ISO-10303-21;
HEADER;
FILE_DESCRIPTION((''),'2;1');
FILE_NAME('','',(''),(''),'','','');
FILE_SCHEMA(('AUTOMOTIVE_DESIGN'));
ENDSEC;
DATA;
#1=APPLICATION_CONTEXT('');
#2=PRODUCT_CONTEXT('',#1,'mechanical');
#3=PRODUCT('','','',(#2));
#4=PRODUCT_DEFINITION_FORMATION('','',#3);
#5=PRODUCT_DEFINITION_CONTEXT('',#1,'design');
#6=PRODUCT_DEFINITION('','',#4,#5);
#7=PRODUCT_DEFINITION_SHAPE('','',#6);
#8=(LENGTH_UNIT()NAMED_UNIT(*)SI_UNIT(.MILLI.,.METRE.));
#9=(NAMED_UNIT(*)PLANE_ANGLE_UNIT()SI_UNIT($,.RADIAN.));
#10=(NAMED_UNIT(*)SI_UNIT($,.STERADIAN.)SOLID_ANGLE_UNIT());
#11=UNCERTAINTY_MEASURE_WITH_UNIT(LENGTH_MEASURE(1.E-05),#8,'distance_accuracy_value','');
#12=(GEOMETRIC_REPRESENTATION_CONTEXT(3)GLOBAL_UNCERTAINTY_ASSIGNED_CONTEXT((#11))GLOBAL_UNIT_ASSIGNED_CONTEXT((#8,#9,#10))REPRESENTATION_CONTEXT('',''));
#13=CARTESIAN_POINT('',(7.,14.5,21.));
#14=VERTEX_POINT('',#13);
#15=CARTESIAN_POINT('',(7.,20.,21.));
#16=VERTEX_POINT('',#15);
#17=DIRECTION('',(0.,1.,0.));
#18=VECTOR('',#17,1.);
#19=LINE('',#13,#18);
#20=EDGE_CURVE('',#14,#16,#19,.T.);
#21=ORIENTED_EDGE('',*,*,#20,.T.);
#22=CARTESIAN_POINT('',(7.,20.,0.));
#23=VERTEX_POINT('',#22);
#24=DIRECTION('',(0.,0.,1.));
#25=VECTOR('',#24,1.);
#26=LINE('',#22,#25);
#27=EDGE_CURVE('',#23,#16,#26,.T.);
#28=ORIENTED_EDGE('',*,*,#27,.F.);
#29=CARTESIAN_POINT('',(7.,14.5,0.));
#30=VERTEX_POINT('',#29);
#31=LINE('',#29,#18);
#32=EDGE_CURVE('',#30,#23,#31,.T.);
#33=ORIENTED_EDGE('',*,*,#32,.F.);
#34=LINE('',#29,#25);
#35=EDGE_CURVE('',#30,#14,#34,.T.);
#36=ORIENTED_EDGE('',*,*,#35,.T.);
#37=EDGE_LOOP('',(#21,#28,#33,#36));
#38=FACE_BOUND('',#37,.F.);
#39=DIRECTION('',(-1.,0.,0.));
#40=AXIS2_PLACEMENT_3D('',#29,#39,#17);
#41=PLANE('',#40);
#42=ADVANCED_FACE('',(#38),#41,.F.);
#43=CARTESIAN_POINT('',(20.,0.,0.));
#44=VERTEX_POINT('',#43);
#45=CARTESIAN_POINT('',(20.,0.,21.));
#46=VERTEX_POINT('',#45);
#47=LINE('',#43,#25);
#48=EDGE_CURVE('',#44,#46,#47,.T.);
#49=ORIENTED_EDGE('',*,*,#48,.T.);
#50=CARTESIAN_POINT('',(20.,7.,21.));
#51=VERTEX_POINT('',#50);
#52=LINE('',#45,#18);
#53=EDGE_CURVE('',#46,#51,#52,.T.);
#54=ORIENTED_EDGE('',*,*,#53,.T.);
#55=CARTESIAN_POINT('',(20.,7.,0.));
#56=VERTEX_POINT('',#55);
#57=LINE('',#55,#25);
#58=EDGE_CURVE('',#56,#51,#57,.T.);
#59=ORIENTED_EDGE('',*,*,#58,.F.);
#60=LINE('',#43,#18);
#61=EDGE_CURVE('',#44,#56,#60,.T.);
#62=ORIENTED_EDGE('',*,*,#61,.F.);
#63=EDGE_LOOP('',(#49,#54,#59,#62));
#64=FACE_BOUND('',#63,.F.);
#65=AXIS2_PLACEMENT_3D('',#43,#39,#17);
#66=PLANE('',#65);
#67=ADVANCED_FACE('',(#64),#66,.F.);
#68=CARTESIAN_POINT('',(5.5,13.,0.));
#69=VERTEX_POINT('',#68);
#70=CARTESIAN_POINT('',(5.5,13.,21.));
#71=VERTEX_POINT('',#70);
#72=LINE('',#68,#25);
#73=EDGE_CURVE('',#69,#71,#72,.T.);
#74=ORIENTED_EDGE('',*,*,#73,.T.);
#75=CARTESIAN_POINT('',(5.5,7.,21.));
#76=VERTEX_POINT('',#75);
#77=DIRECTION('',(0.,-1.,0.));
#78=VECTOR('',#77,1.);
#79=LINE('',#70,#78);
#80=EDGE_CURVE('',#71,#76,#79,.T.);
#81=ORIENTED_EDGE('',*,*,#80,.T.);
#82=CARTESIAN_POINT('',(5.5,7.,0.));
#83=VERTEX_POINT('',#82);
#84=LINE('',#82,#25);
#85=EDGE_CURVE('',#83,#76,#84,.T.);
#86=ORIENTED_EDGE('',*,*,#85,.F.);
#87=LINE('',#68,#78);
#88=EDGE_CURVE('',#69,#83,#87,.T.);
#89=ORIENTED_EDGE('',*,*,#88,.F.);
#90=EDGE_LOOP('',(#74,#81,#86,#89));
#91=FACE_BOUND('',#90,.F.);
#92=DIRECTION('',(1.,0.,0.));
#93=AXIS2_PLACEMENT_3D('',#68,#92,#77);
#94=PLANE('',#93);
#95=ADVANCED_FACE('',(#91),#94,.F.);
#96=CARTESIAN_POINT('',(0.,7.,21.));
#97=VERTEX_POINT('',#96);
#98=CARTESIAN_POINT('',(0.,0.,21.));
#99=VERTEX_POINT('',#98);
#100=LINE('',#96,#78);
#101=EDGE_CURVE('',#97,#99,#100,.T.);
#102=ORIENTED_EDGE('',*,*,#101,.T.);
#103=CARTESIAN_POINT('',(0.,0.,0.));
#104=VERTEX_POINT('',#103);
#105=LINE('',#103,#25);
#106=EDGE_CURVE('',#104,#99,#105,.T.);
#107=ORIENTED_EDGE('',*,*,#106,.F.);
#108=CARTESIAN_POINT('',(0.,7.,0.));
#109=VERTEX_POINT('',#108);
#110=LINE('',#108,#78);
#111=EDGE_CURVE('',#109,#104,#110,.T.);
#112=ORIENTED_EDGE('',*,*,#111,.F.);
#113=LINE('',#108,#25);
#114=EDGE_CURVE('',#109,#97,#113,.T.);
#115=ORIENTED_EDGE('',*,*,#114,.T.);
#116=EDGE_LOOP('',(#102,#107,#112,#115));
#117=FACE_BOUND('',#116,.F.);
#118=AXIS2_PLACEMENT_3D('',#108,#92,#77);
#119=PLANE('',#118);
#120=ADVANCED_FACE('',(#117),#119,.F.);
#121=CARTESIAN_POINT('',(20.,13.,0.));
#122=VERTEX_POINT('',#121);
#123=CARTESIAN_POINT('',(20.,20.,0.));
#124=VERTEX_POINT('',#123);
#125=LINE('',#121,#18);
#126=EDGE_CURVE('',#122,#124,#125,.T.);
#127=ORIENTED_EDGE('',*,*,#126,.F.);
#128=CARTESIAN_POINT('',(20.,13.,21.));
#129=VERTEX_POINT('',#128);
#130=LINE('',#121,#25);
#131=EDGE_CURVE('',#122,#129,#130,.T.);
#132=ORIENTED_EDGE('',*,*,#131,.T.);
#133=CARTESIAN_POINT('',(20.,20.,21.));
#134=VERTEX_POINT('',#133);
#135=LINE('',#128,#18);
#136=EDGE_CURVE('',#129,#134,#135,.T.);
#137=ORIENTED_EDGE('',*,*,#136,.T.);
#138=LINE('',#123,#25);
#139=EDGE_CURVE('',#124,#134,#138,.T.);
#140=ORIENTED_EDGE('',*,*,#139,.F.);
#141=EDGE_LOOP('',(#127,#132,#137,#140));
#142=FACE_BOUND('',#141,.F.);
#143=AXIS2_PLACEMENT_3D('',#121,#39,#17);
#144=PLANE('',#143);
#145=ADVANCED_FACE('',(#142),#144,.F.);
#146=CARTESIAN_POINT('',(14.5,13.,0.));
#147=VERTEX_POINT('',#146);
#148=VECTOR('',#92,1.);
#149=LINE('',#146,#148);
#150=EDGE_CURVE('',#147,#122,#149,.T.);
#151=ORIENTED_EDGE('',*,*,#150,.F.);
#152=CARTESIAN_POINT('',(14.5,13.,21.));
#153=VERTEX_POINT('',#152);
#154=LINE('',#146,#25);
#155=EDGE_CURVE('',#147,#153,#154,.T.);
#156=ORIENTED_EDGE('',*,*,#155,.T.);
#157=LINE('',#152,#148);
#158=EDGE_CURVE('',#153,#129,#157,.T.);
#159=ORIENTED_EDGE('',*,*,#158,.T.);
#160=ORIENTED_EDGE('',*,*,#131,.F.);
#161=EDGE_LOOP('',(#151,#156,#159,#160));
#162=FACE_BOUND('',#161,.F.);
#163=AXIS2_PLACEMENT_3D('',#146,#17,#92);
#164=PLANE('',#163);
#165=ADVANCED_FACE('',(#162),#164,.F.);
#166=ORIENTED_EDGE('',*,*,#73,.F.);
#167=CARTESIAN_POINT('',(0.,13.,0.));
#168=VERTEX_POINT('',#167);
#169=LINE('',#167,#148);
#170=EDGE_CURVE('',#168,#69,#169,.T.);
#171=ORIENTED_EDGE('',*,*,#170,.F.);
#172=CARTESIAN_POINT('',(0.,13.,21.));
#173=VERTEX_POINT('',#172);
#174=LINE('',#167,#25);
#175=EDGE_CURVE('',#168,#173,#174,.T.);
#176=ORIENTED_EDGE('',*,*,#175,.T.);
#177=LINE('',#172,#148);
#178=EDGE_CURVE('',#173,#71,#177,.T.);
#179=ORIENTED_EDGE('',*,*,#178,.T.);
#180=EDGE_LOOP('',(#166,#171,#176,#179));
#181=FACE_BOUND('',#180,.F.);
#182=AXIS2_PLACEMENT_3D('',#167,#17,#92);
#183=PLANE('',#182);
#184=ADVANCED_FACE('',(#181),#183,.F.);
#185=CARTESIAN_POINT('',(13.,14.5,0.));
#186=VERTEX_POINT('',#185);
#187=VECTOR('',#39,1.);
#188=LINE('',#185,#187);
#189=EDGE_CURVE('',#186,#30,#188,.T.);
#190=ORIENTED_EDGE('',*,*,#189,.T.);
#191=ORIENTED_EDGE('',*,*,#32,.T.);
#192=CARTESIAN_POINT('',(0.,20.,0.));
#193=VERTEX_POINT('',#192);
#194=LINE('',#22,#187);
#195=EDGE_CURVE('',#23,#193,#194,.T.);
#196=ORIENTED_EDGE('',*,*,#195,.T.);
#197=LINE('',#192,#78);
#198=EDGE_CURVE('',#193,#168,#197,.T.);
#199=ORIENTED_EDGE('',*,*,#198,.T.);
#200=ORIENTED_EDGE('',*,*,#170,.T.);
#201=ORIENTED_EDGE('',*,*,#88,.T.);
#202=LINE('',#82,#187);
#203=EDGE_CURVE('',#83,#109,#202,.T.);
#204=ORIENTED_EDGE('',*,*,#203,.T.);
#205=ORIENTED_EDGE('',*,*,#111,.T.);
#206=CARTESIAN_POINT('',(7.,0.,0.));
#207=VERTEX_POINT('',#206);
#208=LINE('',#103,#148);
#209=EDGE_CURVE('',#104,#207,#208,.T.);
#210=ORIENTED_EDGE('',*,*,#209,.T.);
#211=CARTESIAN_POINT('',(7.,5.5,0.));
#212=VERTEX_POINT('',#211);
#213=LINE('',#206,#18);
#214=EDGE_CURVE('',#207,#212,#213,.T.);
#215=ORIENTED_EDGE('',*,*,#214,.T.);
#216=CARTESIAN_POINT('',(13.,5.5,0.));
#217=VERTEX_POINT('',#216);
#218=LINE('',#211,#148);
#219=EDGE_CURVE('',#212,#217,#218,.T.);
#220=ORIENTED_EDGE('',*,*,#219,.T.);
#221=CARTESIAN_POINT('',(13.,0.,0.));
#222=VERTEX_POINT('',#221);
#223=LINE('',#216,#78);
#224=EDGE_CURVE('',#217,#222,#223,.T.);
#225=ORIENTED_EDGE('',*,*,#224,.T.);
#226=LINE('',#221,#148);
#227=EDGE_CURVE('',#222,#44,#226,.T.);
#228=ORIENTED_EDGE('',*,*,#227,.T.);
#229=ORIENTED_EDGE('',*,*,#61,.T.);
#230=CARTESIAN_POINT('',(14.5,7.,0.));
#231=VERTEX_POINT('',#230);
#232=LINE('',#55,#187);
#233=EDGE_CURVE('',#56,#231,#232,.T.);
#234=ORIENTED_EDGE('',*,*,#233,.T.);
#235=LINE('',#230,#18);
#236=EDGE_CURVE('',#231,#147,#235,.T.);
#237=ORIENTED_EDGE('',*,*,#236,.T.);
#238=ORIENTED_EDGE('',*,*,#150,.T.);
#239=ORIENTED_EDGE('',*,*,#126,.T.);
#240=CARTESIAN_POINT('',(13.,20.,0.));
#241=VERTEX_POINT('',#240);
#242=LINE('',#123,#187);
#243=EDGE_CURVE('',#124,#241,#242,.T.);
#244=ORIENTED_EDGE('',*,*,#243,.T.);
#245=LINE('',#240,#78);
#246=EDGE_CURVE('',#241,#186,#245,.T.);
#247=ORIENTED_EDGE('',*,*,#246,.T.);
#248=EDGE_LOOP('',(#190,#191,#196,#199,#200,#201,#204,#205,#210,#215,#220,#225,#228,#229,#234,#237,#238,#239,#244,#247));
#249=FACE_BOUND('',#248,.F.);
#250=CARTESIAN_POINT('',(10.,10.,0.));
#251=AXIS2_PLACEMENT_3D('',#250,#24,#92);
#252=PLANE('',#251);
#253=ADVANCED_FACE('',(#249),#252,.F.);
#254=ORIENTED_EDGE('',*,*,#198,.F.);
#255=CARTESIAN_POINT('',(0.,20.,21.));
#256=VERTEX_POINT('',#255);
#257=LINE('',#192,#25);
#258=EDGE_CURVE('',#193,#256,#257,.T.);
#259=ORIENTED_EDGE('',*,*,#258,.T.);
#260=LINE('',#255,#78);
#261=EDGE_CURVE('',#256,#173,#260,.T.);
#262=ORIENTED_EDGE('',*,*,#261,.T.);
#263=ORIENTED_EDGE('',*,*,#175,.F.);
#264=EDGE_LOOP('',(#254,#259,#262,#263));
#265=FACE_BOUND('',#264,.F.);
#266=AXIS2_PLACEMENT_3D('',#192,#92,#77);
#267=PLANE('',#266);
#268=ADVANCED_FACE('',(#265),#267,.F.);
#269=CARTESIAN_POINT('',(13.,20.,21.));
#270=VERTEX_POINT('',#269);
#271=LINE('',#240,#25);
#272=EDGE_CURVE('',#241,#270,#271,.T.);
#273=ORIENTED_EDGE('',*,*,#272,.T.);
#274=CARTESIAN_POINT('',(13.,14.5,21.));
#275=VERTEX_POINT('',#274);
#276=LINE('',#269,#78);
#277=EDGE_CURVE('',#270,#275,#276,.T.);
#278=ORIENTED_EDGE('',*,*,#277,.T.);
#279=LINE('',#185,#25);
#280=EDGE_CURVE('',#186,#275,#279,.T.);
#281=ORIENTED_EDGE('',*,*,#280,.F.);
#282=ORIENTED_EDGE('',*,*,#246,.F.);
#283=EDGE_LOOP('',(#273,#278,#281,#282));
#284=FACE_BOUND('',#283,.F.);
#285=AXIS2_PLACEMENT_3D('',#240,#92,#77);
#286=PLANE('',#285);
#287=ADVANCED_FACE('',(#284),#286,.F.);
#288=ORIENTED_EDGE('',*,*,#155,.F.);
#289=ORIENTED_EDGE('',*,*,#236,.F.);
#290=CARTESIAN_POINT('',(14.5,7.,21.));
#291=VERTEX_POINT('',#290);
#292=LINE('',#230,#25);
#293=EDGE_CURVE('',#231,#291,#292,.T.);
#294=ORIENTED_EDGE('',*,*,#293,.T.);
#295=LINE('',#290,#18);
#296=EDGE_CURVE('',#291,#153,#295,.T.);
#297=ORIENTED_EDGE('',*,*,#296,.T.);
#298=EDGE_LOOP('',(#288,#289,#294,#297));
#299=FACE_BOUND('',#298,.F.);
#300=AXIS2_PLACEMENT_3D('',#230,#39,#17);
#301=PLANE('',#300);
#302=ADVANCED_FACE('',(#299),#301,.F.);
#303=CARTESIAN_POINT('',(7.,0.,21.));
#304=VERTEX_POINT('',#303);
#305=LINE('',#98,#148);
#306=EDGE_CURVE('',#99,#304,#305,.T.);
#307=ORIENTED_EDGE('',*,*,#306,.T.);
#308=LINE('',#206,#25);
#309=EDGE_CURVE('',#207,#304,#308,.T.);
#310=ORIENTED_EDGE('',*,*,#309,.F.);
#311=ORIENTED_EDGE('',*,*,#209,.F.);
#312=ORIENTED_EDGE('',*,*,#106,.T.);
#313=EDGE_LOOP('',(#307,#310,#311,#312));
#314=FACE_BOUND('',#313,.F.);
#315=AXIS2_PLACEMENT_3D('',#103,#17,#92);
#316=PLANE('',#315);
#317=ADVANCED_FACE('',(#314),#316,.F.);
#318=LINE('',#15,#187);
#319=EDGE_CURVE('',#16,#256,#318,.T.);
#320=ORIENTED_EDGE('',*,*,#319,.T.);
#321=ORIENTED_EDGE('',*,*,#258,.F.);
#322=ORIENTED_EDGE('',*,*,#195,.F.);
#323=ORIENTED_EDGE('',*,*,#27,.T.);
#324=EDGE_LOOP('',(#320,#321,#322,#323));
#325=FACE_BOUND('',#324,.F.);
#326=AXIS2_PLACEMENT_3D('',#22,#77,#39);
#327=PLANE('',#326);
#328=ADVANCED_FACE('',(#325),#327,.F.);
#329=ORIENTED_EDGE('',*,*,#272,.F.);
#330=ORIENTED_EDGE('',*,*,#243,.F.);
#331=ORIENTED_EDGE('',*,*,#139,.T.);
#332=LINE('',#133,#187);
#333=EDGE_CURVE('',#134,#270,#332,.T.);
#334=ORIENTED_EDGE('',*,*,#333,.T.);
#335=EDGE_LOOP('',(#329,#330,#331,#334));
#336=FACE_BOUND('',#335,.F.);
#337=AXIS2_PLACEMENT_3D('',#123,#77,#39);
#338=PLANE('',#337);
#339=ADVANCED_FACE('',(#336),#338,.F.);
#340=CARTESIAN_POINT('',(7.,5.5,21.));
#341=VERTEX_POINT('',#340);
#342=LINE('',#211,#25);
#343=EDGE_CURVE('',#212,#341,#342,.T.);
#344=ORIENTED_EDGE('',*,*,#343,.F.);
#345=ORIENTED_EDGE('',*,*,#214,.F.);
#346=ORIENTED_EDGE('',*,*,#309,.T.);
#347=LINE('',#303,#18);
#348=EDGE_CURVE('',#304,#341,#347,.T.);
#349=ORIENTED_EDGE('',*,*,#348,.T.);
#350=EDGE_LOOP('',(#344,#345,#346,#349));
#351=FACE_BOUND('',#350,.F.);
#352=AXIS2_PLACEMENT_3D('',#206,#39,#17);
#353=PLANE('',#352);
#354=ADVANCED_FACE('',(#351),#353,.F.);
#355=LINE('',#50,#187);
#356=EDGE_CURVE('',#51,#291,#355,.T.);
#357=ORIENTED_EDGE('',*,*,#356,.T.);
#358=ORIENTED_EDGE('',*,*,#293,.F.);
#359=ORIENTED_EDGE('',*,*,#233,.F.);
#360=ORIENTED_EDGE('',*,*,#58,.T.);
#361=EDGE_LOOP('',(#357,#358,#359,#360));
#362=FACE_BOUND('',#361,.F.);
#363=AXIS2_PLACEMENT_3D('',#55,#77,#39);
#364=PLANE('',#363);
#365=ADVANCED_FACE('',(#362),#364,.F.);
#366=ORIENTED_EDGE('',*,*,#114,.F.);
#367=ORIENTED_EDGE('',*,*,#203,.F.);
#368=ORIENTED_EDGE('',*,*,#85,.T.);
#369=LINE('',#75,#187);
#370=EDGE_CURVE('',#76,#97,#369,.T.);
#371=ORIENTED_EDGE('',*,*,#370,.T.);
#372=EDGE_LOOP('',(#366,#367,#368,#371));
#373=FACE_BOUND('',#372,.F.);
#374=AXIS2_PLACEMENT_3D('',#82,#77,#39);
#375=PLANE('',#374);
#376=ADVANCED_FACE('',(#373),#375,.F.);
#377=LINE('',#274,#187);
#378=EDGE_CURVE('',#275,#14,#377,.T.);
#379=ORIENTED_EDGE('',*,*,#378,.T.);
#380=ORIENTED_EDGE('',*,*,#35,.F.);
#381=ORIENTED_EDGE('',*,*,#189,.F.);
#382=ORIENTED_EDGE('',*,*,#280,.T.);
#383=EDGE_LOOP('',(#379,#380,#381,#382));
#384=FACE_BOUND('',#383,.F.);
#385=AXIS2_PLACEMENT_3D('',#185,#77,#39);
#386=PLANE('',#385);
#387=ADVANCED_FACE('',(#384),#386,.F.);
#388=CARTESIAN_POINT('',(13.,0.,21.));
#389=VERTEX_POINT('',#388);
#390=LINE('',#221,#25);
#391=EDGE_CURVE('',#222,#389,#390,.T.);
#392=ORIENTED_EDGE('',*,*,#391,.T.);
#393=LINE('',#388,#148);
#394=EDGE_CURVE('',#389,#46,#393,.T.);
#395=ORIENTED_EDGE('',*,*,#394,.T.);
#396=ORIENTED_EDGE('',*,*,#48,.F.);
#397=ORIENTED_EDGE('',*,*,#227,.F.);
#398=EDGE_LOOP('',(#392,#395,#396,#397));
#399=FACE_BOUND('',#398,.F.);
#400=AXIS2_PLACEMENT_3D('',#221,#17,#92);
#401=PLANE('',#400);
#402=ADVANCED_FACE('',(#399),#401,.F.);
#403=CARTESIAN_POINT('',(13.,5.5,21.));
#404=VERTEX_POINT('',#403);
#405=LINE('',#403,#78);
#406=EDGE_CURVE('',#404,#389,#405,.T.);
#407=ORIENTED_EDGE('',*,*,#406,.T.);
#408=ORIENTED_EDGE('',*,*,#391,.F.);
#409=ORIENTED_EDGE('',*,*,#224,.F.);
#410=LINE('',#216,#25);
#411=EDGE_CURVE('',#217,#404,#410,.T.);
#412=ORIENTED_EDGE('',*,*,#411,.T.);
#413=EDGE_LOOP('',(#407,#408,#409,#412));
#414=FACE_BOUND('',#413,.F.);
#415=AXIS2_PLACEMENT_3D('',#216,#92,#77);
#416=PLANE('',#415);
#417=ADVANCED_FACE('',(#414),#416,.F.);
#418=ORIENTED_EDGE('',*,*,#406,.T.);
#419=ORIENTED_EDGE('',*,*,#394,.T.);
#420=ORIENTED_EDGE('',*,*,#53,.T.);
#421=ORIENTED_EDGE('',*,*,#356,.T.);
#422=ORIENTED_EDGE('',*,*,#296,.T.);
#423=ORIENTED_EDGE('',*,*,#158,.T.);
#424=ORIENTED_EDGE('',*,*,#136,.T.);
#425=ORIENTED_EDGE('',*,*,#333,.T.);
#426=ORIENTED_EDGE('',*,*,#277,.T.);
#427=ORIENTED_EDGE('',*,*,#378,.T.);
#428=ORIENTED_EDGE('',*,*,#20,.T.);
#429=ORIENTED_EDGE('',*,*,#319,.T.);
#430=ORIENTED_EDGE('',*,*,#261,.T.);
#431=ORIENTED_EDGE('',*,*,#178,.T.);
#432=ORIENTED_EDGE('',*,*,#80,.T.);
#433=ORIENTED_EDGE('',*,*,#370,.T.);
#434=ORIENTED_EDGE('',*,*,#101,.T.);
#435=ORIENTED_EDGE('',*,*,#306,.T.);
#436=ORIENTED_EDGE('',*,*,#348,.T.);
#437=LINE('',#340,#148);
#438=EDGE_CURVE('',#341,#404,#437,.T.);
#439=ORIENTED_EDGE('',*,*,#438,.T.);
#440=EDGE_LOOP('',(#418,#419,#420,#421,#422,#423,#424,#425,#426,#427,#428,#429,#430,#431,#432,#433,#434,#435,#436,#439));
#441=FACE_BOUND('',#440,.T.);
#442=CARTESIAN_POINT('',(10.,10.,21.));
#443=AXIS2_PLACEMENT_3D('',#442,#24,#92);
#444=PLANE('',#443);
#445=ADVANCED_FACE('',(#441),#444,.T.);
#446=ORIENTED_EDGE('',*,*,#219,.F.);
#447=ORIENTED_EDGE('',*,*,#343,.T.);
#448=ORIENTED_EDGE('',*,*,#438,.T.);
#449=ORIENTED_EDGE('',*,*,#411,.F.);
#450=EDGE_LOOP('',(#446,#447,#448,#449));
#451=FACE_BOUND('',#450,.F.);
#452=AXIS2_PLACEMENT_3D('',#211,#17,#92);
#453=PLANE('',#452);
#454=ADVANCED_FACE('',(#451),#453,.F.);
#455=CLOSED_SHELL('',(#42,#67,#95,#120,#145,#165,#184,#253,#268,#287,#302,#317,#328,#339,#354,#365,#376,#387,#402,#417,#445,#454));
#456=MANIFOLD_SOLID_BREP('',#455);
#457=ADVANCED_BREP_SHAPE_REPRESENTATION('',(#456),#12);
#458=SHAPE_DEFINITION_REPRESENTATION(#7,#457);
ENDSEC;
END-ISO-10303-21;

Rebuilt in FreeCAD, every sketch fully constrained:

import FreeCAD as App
import Part
import Sketcher
from FreeCAD import Vector
Q = App.Units.Quantity

doc = App.newDocument("Part")
body = doc.addObject("PartDesign::Body", "Body")

# Sketch on XY plane
sketch1 = body.newObject("Sketcher::SketchObject", "Sketch")
sketch1.AttachmentSupport = (doc.getObject("XY_Plane"), [""])
sketch1.MapMode = "FlatFace"
sketch1.addGeometry([
    Part.LineSegment(Vector(0, 7, 0), Vector(0, 0, 0)),  # 0
    Part.LineSegment(Vector(0, 0, 0), Vector(7, 0, 0)),  # 1
    Part.LineSegment(Vector(7, 0, 0), Vector(7, 6, 0)),  # 2
    Part.LineSegment(Vector(7, 6, 0), Vector(13, 6, 0)),  # 3
    Part.LineSegment(Vector(13, 6, 0), Vector(13, 0, 0)),  # 4
    Part.LineSegment(Vector(13, 0, 0), Vector(20, 0, 0)),  # 5
    Part.LineSegment(Vector(20, 0, 0), Vector(20, 7, 0)),  # 6
    Part.LineSegment(Vector(20, 7, 0), Vector(14, 7, 0)),  # 7
    Part.LineSegment(Vector(14, 7, 0), Vector(14, 13, 0)),  # 8
    Part.LineSegment(Vector(14, 13, 0), Vector(20, 13, 0)),  # 9
    Part.LineSegment(Vector(20, 13, 0), Vector(20, 20, 0)),  # 10
    Part.LineSegment(Vector(20, 20, 0), Vector(13, 20, 0)),  # 11
    Part.LineSegment(Vector(13, 20, 0), Vector(13, 14, 0)),  # 12
    Part.LineSegment(Vector(13, 14, 0), Vector(7, 14, 0)),  # 13
    Part.LineSegment(Vector(7, 14, 0), Vector(7, 20, 0)),  # 14
    Part.LineSegment(Vector(7, 20, 0), Vector(0, 20, 0)),  # 15
    Part.LineSegment(Vector(0, 20, 0), Vector(0, 13, 0)),  # 16
    Part.LineSegment(Vector(0, 13, 0), Vector(6, 13, 0)),  # 17
    Part.LineSegment(Vector(6, 13, 0), Vector(6, 7, 0)),  # 18
    Part.LineSegment(Vector(6, 7, 0), Vector(0, 7, 0)),  # 19
], False)
sketch1.addConstraint([
    Sketcher.Constraint("Coincident", 0, 2, 1, 1),
    Sketcher.Constraint("Coincident", 1, 2, 2, 1),
    Sketcher.Constraint("Coincident", 2, 2, 3, 1),
    Sketcher.Constraint("Coincident", 3, 2, 4, 1),
    Sketcher.Constraint("Coincident", 4, 2, 5, 1),
    Sketcher.Constraint("Coincident", 5, 2, 6, 1),
    Sketcher.Constraint("Coincident", 6, 2, 7, 1),
    Sketcher.Constraint("Coincident", 7, 2, 8, 1),
    Sketcher.Constraint("Coincident", 8, 2, 9, 1),
    Sketcher.Constraint("Coincident", 9, 2, 10, 1),
    Sketcher.Constraint("Coincident", 10, 2, 11, 1),
    Sketcher.Constraint("Coincident", 11, 2, 12, 1),
    Sketcher.Constraint("Coincident", 12, 2, 13, 1),
    Sketcher.Constraint("Coincident", 13, 2, 14, 1),
    Sketcher.Constraint("Coincident", 14, 2, 15, 1),
    Sketcher.Constraint("Coincident", 15, 2, 16, 1),
    Sketcher.Constraint("Coincident", 16, 2, 17, 1),
    Sketcher.Constraint("Coincident", 17, 2, 18, 1),
    Sketcher.Constraint("Coincident", 18, 2, 19, 1),
    Sketcher.Constraint("Coincident", 19, 2, 0, 1),
    Sketcher.Constraint("Vertical", 0),
    Sketcher.Constraint("Horizontal", 1),
    Sketcher.Constraint("Vertical", 2),
    Sketcher.Constraint("Horizontal", 3),
    Sketcher.Constraint("Vertical", 4),
    Sketcher.Constraint("Horizontal", 5),
    Sketcher.Constraint("Vertical", 6),
    Sketcher.Constraint("Horizontal", 7),
    Sketcher.Constraint("Vertical", 8),
    Sketcher.Constraint("Horizontal", 9),
    Sketcher.Constraint("Vertical", 10),
    Sketcher.Constraint("Horizontal", 11),
    Sketcher.Constraint("Vertical", 12),
    Sketcher.Constraint("Horizontal", 13),
    Sketcher.Constraint("Vertical", 14),
    Sketcher.Constraint("Horizontal", 15),
    Sketcher.Constraint("Vertical", 16),
    Sketcher.Constraint("Horizontal", 17),
    Sketcher.Constraint("Vertical", 18),
    Sketcher.Constraint("Horizontal", 19),
    Sketcher.Constraint("Coincident", 0, 2, -1, 1),
    Sketcher.Constraint("PointOnObject", 4, 2, -1),
    Sketcher.Constraint("PointOnObject", 15, 2, -2),
    Sketcher.Constraint("Horizontal", 11, 2, 14, 2),
    Sketcher.Constraint("Horizontal", 9, 2, 16, 2),
    Sketcher.Constraint("Horizontal", 7, 2, 18, 2),
    Sketcher.Constraint("Vertical", 6, 2, 9, 2),
    Sketcher.Constraint("Vertical", 4, 2, 11, 2),
    Sketcher.Constraint("Vertical", 2, 2, 13, 2),
    Sketcher.Constraint("Equal", 1, 5),
    Sketcher.Constraint("Equal", 9, 17),
    Sketcher.Constraint("Equal", 15, 0),
    Sketcher.Constraint("Equal", 19, 2),
    Sketcher.Constraint("Equal", 13, 8),
    Sketcher.Constraint("Equal", 6, 10),
    Sketcher.Constraint("Equal", 4, 12),
    Sketcher.Constraint("DistanceX", 1, 1, 1, 2, Q("7 mm")),
    Sketcher.Constraint("DistanceX", 3, 1, 3, 2, Q("6 mm")),
    Sketcher.Constraint("DistanceX", 7, 2, 7, 1, Q("5.5 mm")),
])
pad1 = body.newObject("PartDesign::Pad", "Pad")
pad1.Profile = sketch1
pad1.Length = 21

# Sketch on YZ plane
sketch2 = body.newObject("Sketcher::SketchObject", "Sketch001")
sketch2.AttachmentSupport = (doc.getObject("YZ_Plane"), [""])
sketch2.MapMode = "FlatFace"
sketch2.AttachmentOffset = App.Placement(Vector(0, 0, 14.5), App.Rotation())
sketch2.addGeometry(Part.Circle(Vector(10, 70, 0), Vector(0, 0, 1), 2.5), False)
sketch2.addConstraint([
    Sketcher.Constraint("Diameter", 0, Q("5 mm")),
    Sketcher.Constraint("DistanceX", -1, 1, 0, 3, Q("10 mm")),
    Sketcher.Constraint("DistanceY", -1, 1, 0, 3, Q("70 mm")),
])
pocket1 = body.newObject("PartDesign::Pocket", "Pocket")
pocket1.Profile = sketch2
pocket1.Length = 25

# Sketch on XZ plane
sketch3 = body.newObject("Sketcher::SketchObject", "Sketch002")
sketch3.AttachmentSupport = (doc.getObject("XZ_Plane"), [""])
sketch3.MapMode = "FlatFace"
sketch3.AttachmentOffset = App.Placement(Vector(0, 0, -5.5), App.Rotation())
sketch3.addGeometry(Part.Circle(Vector(10, 70, 0), Vector(0, 0, 1), 2.5), False)
sketch3.addConstraint([
    Sketcher.Constraint("Diameter", 0, Q("5 mm")),
    Sketcher.Constraint("DistanceX", -1, 1, 0, 3, Q("10 mm")),
    Sketcher.Constraint("DistanceY", -1, 1, 0, 3, Q("70 mm")),
])
pocket2 = body.newObject("PartDesign::Pocket", "Pocket001")
pocket2.Profile = sketch3
pocket2.Length = 25

doc.recompute()
